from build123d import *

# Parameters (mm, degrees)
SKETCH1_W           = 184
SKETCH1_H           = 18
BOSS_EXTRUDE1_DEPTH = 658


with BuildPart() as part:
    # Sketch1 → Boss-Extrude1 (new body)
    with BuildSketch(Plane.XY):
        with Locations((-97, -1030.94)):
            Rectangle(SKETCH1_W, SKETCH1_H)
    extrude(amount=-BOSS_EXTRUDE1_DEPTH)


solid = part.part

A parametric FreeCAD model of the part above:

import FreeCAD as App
import Part
import Sketcher

V = App.Vector
Q = App.Units.Quantity


def add_polygon(sketch, points):
    """Adds a closed chain of lines whose ends are joined by coincident constraints."""
    first, n = sketch.GeometryCount, len(points)
    for a, b in zip(points, points[1:] + points[:1]):
        sketch.addGeometry(Part.LineSegment(App.Vector(*a, 0), App.Vector(*b, 0)), False)
    for i in range(n):
        sketch.addConstraint(Sketcher.Constraint("Coincident", first + i, 2, first + (i + 1) % n, 1))

doc = App.newDocument("Part")
body = doc.addObject("PartDesign::Body", "Body")

# Sketch on XY plane
sketch1 = doc.addObject("Sketcher::SketchObject", "Sketch")
body.addObject(sketch1)
sketch1.AttachmentSupport = (doc.XY_Plane, [""])
sketch1.MapMode = "FlatFace"
add_polygon(sketch1, [(-189, -1022), (-189, -1040), (-5, -1040), (-5, -1022)])  # lines 0-3
sketch1.addConstraint([
    Sketcher.Constraint("Vertical", 0),
    Sketcher.Constraint("Horizontal", 1),
    Sketcher.Constraint("Vertical", 2),
    Sketcher.Constraint("Horizontal", 3),
    Sketcher.Constraint("DistanceX", 1, 1, 1, 2, Q("184 mm")),
    Sketcher.Constraint("DistanceY", 0, 2, 0, 1, Q("18 mm")),
    Sketcher.Constraint("DistanceX", 0, 2, -1, 1, Q("189 mm")),
    Sketcher.Constraint("DistanceY", 0, 2, -1, 1, Q("1039.94 mm")),
])
pad1 = doc.addObject("PartDesign::Pad", "Pad")
body.addObject(pad1)
pad1.Profile = sketch1
pad1.Length = 658
pad1.Reversed = True

doc.recompute()
